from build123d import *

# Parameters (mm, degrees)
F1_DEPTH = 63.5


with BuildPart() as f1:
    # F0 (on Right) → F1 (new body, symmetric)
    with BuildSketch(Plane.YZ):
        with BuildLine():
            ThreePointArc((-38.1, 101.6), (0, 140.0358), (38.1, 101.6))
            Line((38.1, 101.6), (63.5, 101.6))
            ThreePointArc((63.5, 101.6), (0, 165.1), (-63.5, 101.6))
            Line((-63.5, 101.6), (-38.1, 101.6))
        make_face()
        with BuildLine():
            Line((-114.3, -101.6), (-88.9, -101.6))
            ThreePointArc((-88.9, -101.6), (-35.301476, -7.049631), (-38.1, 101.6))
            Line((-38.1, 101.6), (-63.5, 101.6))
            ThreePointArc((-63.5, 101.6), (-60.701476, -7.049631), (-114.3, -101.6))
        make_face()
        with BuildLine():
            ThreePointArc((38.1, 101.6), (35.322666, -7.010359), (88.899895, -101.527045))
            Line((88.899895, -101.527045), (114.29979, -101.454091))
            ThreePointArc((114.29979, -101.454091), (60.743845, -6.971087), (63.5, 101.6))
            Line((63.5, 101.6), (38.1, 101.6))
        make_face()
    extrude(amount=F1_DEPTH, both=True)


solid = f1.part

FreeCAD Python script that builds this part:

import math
import FreeCAD as App
import Part
import Sketcher

V = App.Vector
Q = App.Units.Quantity

doc = App.newDocument("Part")
body = doc.addObject("PartDesign::Body", "Body")

sketch1 = doc.addObject("Sketcher::SketchObject", "Sketch")
body.addObject(sketch1)
sketch1.AttachmentSupport = (doc.YZ_Plane, [""])
sketch1.MapMode = "FlatFace"
sketch1.addGeometry(Part.ArcOfCircle(Part.Circle(V(0, 102, 0), V(0, 0, 1), 38), math.radians(-1), math.radians(181)), False)
sketch1.addGeometry(Part.ArcOfCircle(Part.Circle(V(232, 42, 0), V(0, 0, 1), 203), math.radians(163), math.radians(225)), False)
sketch1.addGeometry(Part.LineSegment(V(89, -102, 0), V(114, -101, 0)), False)
sketch1.addGeometry(Part.ArcOfCircle(Part.Circle(V(258, 42, 0), V(0, 0, 1), 203), math.radians(163), math.radians(225)), False)
sketch1.addGeometry(Part.ArcOfCircle(Part.Circle(V(0, 102, 0), V(0, 0, 1), 64), math.radians(0), math.radians(180)), False)
sketch1.addGeometry(Part.ArcOfCircle(Part.Circle(V(-258, 42, 0), V(0, 0, 1), 203), math.radians(-45), math.radians(17)), False)
sketch1.addGeometry(Part.LineSegment(V(-114, -102, 0), V(-89, -102, 0)), False)
sketch1.addGeometry(Part.ArcOfCircle(Part.Circle(V(-232, 42, 0), V(0, 0, 1), 203), math.radians(-45), math.radians(17)), False)
sketch1.addConstraint(Sketcher.Constraint("Coincident", 0, 1, 1, 1))
sketch1.addConstraint(Sketcher.Constraint("Coincident", 1, 2, 2, 1))
sketch1.addConstraint(Sketcher.Constraint("Coincident", 2, 2, 3, 2))
sketch1.addConstraint(Sketcher.Constraint("Coincident", 3, 1, 4, 1))
sketch1.addConstraint(Sketcher.Constraint("Coincident", 4, 2, 5, 2))
sketch1.addConstraint(Sketcher.Constraint("Coincident", 5, 1, 6, 1))
sketch1.addConstraint(Sketcher.Constraint("Coincident", 6, 2, 7, 1))
sketch1.addConstraint(Sketcher.Constraint("Coincident", 7, 2, 0, 2))
sketch1.addConstraint(Sketcher.Constraint("Horizontal", 6))
sketch1.addConstraint(Sketcher.Constraint("Equal", 1, 3))
sketch1.addConstraint(Sketcher.Constraint("Equal", 3, 5))
sketch1.addConstraint(Sketcher.Constraint("Equal", 5, 7))
sketch1.addConstraint(Sketcher.Constraint("Symmetric", 3, 1, 4, 2, -2))
sketch1.addConstraint(Sketcher.Constraint("Symmetric", 0, 1, 7, 2, -2))
sketch1.addConstraint(Sketcher.Constraint("Horizontal", 5, 3, 7, 3))
sketch1.addConstraint(Sketcher.Constraint("Horizontal", 4, 3, 0, 1))
sketch1.addConstraint(Sketcher.Constraint("Horizontal", 0, 1, 3, 1))
sketch1.addConstraint(Sketcher.Constraint("Radius", 1, Q("8 in")))
sketch1.addConstraint(Sketcher.Constraint("Radius", 4, Q("2.5 in")))
sketch1.addConstraint(Sketcher.Constraint("DistanceX", 6, 1, 6, 2, Q("1 in")))
sketch1.addConstraint(Sketcher.Constraint("Distance", 2, Q("1 in")))
sketch1.addConstraint(Sketcher.Constraint("DistanceY", -1, 1, 4, 3, Q("4 in")))
sketch1.addConstraint(Sketcher.Constraint("DistanceY", 5, 1, -1, 1, Q("4 in")))
sketch1.addConstraint(Sketcher.Constraint("DistanceX", 5, 1, 4, 2, Q("2 in")))
sketch1.addConstraint(Sketcher.Constraint("Radius", 0, 38.101467))
sketch1.addConstraint(Sketcher.Constraint("DistanceX", -1, 1, 1, 3, 232.451481))
sketch1.addConstraint(Sketcher.Constraint("DistanceY", -1, 1, 3, 3, 42.345289))
sketch1.addConstraint(Sketcher.Constraint("DistanceX", -1, 1, 2, 2, 114.29979))
pad1 = doc.addObject("PartDesign::Pad", "Pad")
body.addObject(pad1)
pad1.Profile = sketch1
pad1.Length = Q("5 in")
pad1.Midplane = True

doc.recompute()
